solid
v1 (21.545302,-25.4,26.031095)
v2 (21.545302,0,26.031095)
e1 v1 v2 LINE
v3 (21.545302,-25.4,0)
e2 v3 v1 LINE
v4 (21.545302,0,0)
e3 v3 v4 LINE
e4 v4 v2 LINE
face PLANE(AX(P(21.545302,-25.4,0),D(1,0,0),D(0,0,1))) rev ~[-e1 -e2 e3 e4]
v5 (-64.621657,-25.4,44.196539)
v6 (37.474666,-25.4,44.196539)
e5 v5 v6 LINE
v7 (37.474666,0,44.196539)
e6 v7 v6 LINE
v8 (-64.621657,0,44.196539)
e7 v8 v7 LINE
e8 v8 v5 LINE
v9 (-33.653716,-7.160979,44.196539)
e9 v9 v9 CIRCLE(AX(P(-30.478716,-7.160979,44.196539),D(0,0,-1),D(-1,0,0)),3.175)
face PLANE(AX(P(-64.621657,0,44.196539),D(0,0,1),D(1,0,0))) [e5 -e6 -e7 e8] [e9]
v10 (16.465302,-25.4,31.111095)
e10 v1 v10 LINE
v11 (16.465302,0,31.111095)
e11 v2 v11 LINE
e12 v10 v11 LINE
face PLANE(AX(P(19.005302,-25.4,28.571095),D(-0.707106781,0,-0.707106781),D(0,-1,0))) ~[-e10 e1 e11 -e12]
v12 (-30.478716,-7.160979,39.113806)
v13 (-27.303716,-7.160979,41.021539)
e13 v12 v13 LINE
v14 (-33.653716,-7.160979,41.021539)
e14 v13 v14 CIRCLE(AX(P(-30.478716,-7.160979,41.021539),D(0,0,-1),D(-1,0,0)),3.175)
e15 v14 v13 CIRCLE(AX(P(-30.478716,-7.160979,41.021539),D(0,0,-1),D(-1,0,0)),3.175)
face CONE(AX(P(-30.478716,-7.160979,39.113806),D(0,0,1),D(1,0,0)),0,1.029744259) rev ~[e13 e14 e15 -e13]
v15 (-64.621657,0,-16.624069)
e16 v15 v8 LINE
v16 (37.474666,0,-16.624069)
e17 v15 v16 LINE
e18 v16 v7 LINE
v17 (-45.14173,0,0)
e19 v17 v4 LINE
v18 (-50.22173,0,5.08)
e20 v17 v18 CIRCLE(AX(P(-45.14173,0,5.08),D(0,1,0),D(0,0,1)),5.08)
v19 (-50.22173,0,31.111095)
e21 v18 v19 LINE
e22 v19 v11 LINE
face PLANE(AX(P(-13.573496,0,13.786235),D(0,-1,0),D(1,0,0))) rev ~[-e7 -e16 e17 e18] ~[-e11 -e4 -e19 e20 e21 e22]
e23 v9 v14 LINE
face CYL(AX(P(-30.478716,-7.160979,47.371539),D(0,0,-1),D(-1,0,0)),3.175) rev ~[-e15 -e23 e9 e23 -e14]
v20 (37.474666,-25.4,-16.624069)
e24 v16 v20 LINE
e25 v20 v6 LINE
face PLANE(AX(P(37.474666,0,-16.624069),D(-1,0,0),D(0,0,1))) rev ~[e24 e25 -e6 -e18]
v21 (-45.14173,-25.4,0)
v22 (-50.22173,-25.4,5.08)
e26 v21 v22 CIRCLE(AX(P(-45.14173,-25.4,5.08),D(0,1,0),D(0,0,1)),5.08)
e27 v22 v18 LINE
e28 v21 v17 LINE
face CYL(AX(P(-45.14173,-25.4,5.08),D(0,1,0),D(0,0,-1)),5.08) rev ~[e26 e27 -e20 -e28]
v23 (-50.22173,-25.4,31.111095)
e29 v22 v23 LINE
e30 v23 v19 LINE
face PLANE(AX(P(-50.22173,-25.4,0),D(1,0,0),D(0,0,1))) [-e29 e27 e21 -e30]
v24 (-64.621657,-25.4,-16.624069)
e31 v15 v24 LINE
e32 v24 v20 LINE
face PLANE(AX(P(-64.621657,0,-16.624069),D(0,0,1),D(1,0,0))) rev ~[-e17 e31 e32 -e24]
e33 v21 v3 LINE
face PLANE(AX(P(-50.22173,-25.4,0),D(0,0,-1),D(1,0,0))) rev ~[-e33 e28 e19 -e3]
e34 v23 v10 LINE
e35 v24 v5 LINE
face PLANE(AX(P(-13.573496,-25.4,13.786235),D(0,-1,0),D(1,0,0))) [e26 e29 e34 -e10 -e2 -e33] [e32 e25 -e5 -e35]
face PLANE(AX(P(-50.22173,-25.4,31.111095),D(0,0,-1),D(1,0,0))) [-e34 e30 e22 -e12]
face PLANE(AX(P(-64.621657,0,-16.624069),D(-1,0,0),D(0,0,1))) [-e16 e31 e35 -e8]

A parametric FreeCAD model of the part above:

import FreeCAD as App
import Part
import Sketcher
from FreeCAD import Vector
Q = App.Units.Quantity


def edges_at(feature, points):
    """Names of the edges that pass closest to the given points."""
    edges = feature.Shape.Edges
    near = lambda p: min(range(len(edges)), key=lambda i: edges[i].distToShape(Part.Vertex(*p))[0])
    return sorted({f"Edge{near(p) + 1}" for p in points})

doc = App.newDocument("Part")
params = doc.addObject("Spreadsheet::Sheet", "Params")
for row, (alias, value) in enumerate([
    ("pad1_length", "1 in"),
    ("fillet_radius", "0.2 in"),
    ("chamfer_size", "0.2 in"),
    ("sketch3_diameter", "0.25 in"),
    ("hole_diameter", "0.25 in"),
    ("hole_depth", "0.125 in"),
], start=1):
    params.set(f"A{row}", alias)
    params.set(f"B{row}", "=" + value)
    params.setAlias(f"B{row}", alias)

body = doc.addObject("PartDesign::Body", "Body")

# Sketch on XZ plane
sketch1 = body.newObject("Sketcher::SketchObject", "Sketch")
sketch1.AttachmentSupport = (doc.getObject("XZ_Plane"), [""])
sketch1.MapMode = "FlatFace"
sketch1.addGeometry([
    Part.LineSegment(Vector(-65, 44, 0), Vector(-65, -17, 0)),
    Part.LineSegment(Vector(-65, -17, 0), Vector(37, -17, 0)),
    Part.LineSegment(Vector(37, -17, 0), Vector(37, 44, 0)),
    Part.LineSegment(Vector(37, 44, 0), Vector(-65, 44, 0)),
], False)
sketch1.addConstraint([
    Sketcher.Constraint("Coincident", 0, 2, 1, 1),
    Sketcher.Constraint("Coincident", 1, 2, 2, 1),
    Sketcher.Constraint("Coincident", 2, 2, 3, 1),
    Sketcher.Constraint("Coincident", 3, 2, 0, 1),
    Sketcher.Constraint("Vertical", 0),
    Sketcher.Constraint("Horizontal", 1),
    Sketcher.Constraint("Vertical", 2),
    Sketcher.Constraint("Horizontal", 3),
    Sketcher.Constraint("DistanceX", 1, 1, 1, 2, Q("102.096323 mm")),
    Sketcher.Constraint("DistanceY", 0, 2, 0, 1, Q("60.820607 mm")),
    Sketcher.Constraint("DistanceY", 0, 2, -1, 1, Q("16.624069 mm")),
    Sketcher.Constraint("DistanceX", 0, 2, -1, 1, Q("64.621657 mm")),
])
pad1 = body.newObject("PartDesign::Pad", "Pad")
pad1.Profile = sketch1
pad1.setExpression("Length", "Params.pad1_length")

# Sketch on XZ plane
sketch2 = body.newObject("Sketcher::SketchObject", "Sketch001")
sketch2.AttachmentSupport = (doc.getObject("XZ_Plane"), [""])
sketch2.MapMode = "FlatFace"
sketch2.AttachmentOffset = App.Placement(Vector(0, 0, 1 * 25.4), App.Rotation())
sketch2.addGeometry([
    Part.LineSegment(Vector(-50, 31, 0), Vector(-50, 0, 0)),
    Part.LineSegment(Vector(-50, 0, 0), Vector(22, 0, 0)),
    Part.LineSegment(Vector(22, 0, 0), Vector(22, 31, 0)),
    Part.LineSegment(Vector(22, 31, 0), Vector(-50, 31, 0)),
], False)
sketch2.addConstraint([
    Sketcher.Constraint("Coincident", 0, 2, 1, 1),
    Sketcher.Constraint("Coincident", 1, 2, 2, 1),
    Sketcher.Constraint("Coincident", 2, 2, 3, 1),
    Sketcher.Constraint("Coincident", 3, 2, 0, 1),
    Sketcher.Constraint("Vertical", 0),
    Sketcher.Constraint("Horizontal", 1),
    Sketcher.Constraint("Vertical", 2),
    Sketcher.Constraint("Horizontal", 3),
    Sketcher.Constraint("PointOnObject", 0, 2, -1),
    Sketcher.Constraint("DistanceX", 1, 1, 1, 2, Q("71.767032 mm")),
    Sketcher.Constraint("DistanceY", 0, 2, 0, 1, Q("31.111095 mm")),
    Sketcher.Constraint("DistanceX", 0, 2, -1, 1, Q("50.22173 mm")),
])
pocket1 = body.newObject("PartDesign::Pocket", "Pocket")
pocket1.Profile = sketch2
pocket1.Type = "ThroughAll"
doc.recompute()

fillet = body.newObject("PartDesign::Fillet", "Fillet")
fillet.Base = (pocket1, edges_at(pocket1, [(-50.222, -12.7, 0)]))
fillet.setExpression("Radius", "Params.fillet_radius")
doc.recompute()

chamfer = body.newObject("PartDesign::Chamfer", "Chamfer")
chamfer.Base = (fillet, edges_at(fillet, [(21.545, -12.7, 31.111)]))
chamfer.setExpression("Size", "Params.chamfer_size")

# Sketch on XY plane
sketch3 = body.newObject("Sketcher::SketchObject", "Sketch002")
sketch3.AttachmentSupport = (doc.getObject("XY_Plane"), [""])
sketch3.MapMode = "FlatFace"
sketch3.AttachmentOffset = App.Placement(Vector(0, 0, 44.196539), App.Rotation())
sketch3.addGeometry(Part.Circle(Vector(-30.5, -7.2, 0), Vector(0, 0, 1), 3.2), False)
sketch3.addConstraint([
    Sketcher.Constraint("Diameter", 0, Q("0.25 in")),
    Sketcher.Constraint("DistanceY", 0, 3, -1, 1, Q("7.160979 mm")),
    Sketcher.Constraint("DistanceX", 0, 3, -1, 1, Q("30.478716 mm")),
])
sketch3.setExpression("Constraints[0]", "Params.sketch3_diameter")
doc.recompute()
hole = body.newObject("PartDesign::Hole", "Hole")
hole.Profile = sketch3
hole.ThreadType = "None"
hole.setExpression("Diameter", "Params.hole_diameter")
hole.DepthType = "Dimension"
hole.setExpression("Depth", "Params.hole_depth")
hole.DrillPoint = "Angled"
hole.DrillPointAngle = 118

doc.recompute()
